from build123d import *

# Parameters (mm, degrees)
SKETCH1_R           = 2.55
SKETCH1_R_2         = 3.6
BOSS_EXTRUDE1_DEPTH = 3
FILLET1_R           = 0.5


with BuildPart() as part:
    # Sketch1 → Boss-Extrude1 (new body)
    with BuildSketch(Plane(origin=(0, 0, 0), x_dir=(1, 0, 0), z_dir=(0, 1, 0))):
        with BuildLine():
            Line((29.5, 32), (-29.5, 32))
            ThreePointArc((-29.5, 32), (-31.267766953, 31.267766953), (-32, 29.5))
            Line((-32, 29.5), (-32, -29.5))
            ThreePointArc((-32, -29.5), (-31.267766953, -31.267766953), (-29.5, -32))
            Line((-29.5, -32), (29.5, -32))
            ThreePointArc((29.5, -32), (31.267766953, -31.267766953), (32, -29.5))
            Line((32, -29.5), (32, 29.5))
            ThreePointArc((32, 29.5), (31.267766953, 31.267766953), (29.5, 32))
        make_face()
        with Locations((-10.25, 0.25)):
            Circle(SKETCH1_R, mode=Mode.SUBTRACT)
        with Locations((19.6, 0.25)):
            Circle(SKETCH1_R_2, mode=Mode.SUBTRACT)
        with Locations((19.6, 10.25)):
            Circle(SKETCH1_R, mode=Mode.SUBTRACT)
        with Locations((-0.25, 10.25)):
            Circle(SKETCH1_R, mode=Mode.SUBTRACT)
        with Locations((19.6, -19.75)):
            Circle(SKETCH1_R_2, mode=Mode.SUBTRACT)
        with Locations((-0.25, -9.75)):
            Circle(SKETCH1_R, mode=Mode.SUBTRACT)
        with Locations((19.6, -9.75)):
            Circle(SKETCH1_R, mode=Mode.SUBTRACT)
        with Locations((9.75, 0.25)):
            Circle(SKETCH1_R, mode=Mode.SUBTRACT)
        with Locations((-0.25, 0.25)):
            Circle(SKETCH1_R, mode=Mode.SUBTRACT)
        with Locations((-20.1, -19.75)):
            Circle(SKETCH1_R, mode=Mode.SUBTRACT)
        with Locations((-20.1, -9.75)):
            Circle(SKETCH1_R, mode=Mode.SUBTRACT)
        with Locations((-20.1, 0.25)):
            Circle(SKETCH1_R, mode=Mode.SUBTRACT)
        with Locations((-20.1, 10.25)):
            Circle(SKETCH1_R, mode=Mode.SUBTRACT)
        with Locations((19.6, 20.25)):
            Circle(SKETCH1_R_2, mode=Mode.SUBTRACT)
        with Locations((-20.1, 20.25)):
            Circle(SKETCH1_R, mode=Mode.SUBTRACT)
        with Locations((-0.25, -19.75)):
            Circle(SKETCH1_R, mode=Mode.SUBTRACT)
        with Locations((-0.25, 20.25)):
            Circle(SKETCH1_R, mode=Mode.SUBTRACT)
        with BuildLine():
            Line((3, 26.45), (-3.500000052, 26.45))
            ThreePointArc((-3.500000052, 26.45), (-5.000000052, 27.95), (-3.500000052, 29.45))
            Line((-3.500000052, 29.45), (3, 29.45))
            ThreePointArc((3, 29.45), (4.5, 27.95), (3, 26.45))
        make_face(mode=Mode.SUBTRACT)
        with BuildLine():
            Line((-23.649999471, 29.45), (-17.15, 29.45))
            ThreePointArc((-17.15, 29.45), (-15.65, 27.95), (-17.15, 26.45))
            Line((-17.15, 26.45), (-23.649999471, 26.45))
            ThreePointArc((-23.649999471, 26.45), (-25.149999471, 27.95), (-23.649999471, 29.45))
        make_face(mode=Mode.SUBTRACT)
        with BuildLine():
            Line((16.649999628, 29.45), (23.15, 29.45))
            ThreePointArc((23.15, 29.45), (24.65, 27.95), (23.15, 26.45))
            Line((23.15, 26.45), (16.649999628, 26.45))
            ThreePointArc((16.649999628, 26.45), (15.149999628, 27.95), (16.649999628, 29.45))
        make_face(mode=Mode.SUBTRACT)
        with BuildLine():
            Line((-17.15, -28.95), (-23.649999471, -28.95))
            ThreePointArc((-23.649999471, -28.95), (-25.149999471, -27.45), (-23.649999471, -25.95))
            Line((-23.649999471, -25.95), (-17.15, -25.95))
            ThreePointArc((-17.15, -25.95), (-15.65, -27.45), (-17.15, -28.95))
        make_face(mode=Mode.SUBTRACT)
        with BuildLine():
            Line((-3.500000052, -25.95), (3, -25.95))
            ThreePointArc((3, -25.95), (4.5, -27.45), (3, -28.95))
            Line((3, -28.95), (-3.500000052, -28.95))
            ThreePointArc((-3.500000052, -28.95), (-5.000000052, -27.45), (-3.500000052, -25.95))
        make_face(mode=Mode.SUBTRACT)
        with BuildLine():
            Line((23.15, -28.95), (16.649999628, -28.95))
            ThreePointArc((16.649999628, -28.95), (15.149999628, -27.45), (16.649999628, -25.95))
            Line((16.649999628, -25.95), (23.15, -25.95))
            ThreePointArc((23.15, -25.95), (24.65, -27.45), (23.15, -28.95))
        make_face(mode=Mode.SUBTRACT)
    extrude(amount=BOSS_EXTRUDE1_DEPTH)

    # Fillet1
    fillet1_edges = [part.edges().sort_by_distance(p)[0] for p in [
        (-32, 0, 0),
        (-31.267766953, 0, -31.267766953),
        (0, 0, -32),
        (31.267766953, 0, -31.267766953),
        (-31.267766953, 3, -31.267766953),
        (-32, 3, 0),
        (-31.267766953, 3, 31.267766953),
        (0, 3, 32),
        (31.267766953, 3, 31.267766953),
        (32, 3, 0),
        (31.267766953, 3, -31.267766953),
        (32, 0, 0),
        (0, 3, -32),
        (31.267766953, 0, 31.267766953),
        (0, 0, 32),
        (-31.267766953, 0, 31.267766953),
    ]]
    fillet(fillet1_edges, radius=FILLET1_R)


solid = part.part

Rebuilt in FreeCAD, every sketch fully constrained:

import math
import FreeCAD as App
import Part
import Sketcher
Q = App.Units.Quantity


def edges_at(feature, points):
    """Names of the edges that pass closest to the given points."""
    edges = feature.Shape.Edges
    near = lambda p: min(range(len(edges)), key=lambda i: edges[i].distToShape(Part.Vertex(*p))[0])
    return sorted({f"Edge{near(p) + 1}" for p in points})

doc = App.newDocument("Part")
body = doc.addObject("PartDesign::Body", "Body")

# Sketch on XZ plane
sketch1 = body.newObject("Sketcher::SketchObject", "Sketch")
sketch1.AttachmentSupport = (doc.getObject("XZ_Plane"), [""])
sketch1.MapMode = "FlatFace"
sketch1.addGeometry([
    Part.LineSegment(App.Vector(29.5, -32, 0), App.Vector(-29.5, -32, 0)),  # 0
    Part.ArcOfCircle(Part.Circle(App.Vector(-29.5, -29.5, 0), App.Vector(0, 0, 1), 2.5), math.radians(180), math.radians(270)),  # 1
    Part.LineSegment(App.Vector(-32, -29.5, 0), App.Vector(-32, 29.5, 0)),  # 2
    Part.ArcOfCircle(Part.Circle(App.Vector(-29.5, 29.5, 0), App.Vector(0, 0, 1), 2.5), math.radians(90), math.radians(180)),  # 3
    Part.LineSegment(App.Vector(-29.5, 32, 0), App.Vector(29.5, 32, 0)),  # 4
    Part.ArcOfCircle(Part.Circle(App.Vector(29.5, 29.5, 0), App.Vector(0, 0, 1), 2.5), math.radians(0), math.radians(90)),  # 5
    Part.LineSegment(App.Vector(32, 29.5, 0), App.Vector(32, -29.5, 0)),  # 6
    Part.ArcOfCircle(Part.Circle(App.Vector(29.5, -29.5, 0), App.Vector(0, 0, 1), 2.5), math.radians(-90), math.radians(0)),  # 7
    Part.ArcOfCircle(Part.Circle(App.Vector(-17.1, 27.4, 0), App.Vector(0, 0, 1), 1.5), math.radians(-90), math.radians(90)),  # 8
    Part.LineSegment(App.Vector(-17.1, 28.9, 0), App.Vector(-23.6, 28.9, 0)),  # 9
    Part.ArcOfCircle(Part.Circle(App.Vector(-23.6, 27.4, 0), App.Vector(0, 0, 1), 1.5), math.radians(90), math.radians(270)),  # 10
    Part.LineSegment(App.Vector(-23.6, 25.9, 0), App.Vector(-17.1, 25.9, 0)),  # 11
    Part.Circle(App.Vector(-20.1, 19.8, 0), App.Vector(0, 0, 1), 2.5),  # 12
    Part.ArcOfCircle(Part.Circle(App.Vector(-3.5, 27.4, 0), App.Vector(0, 0, 1), 1.5), math.radians(90), math.radians(270)),  # 13
    Part.LineSegment(App.Vector(-3.5, 25.9, 0), App.Vector(3, 25.9, 0)),  # 14
    Part.ArcOfCircle(Part.Circle(App.Vector(3, 27.4, 0), App.Vector(0, 0, 1), 1.5), math.radians(-90), math.radians(90)),  # 15
    Part.LineSegment(App.Vector(3, 28.9, 0), App.Vector(-3.5, 28.9, 0)),  # 16
    Part.Circle(App.Vector(-0.2, 19.8, 0), App.Vector(0, 0, 1), 2.5),  # 17
    Part.Circle(App.Vector(-20.1, 9.8, 0), App.Vector(0, 0, 1), 2.5),  # 18
    Part.Circle(App.Vector(-20.1, -0.2, 0), App.Vector(0, 0, 1), 2.5),  # 19
    Part.Circle(App.Vector(-0.2, 9.8, 0), App.Vector(0, 0, 1), 2.5),  # 20
    Part.Circle(App.Vector(-10.2, -0.2, 0), App.Vector(0, 0, 1), 2.5),  # 21
    Part.Circle(App.Vector(-0.2, -0.2, 0), App.Vector(0, 0, 1), 2.5),  # 22
    Part.ArcOfCircle(Part.Circle(App.Vector(23.1, 27.4, 0), App.Vector(0, 0, 1), 1.5), math.radians(-90), math.radians(90)),  # 23
    Part.LineSegment(App.Vector(23.1, 28.9, 0), App.Vector(16.6, 28.9, 0)),  # 24
    Part.ArcOfCircle(Part.Circle(App.Vector(16.6, 27.4, 0), App.Vector(0, 0, 1), 1.5), math.radians(90), math.radians(270)),  # 25
    Part.LineSegment(App.Vector(16.6, 25.9, 0), App.Vector(23.1, 25.9, 0)),  # 26
    Part.Circle(App.Vector(19.6, 19.8, 0), App.Vector(0, 0, 1), 3.6),  # 27
    Part.Circle(App.Vector(9.8, -0.2, 0), App.Vector(0, 0, 1), 2.5),  # 28
    Part.Circle(App.Vector(19.6, 9.8, 0), App.Vector(0, 0, 1), 2.5),  # 29
    Part.Circle(App.Vector(19.6, -0.2, 0), App.Vector(0, 0, 1), 3.6),  # 30
    Part.Circle(App.Vector(-20.1, -10.2, 0), App.Vector(0, 0, 1), 2.5),  # 31
    Part.Circle(App.Vector(-0.2, -10.2, 0), App.Vector(0, 0, 1), 2.5),  # 32
    Part.Circle(App.Vector(-20.1, -20.2, 0), App.Vector(0, 0, 1), 2.5),  # 33
    Part.ArcOfCircle(Part.Circle(App.Vector(-23.6, -27.9, 0), App.Vector(0, 0, 1), 1.5), math.radians(90), math.radians(270)),  # 34
    Part.LineSegment(App.Vector(-23.6, -29.4, 0), App.Vector(-17.1, -29.4, 0)),  # 35
    Part.ArcOfCircle(Part.Circle(App.Vector(-17.1, -27.9, 0), App.Vector(0, 0, 1), 1.5), math.radians(-90), math.radians(90)),  # 36
    Part.LineSegment(App.Vector(-17.1, -26.4, 0), App.Vector(-23.6, -26.4, 0)),  # 37
    Part.Circle(App.Vector(-0.2, -20.2, 0), App.Vector(0, 0, 1), 2.5),  # 38
    Part.ArcOfCircle(Part.Circle(App.Vector(3, -27.9, 0), App.Vector(0, 0, 1), 1.5), math.radians(-90), math.radians(90)),  # 39
    Part.LineSegment(App.Vector(3, -26.4, 0), App.Vector(-3.5, -26.4, 0)),  # 40
    Part.ArcOfCircle(Part.Circle(App.Vector(-3.5, -27.9, 0), App.Vector(0, 0, 1), 1.5), math.radians(90), math.radians(270)),  # 41
    Part.LineSegment(App.Vector(-3.5, -29.4, 0), App.Vector(3, -29.4, 0)),  # 42
    Part.Circle(App.Vector(19.6, -10.2, 0), App.Vector(0, 0, 1), 2.5),  # 43
    Part.Circle(App.Vector(19.6, -20.2, 0), App.Vector(0, 0, 1), 3.6),  # 44
    Part.ArcOfCircle(Part.Circle(App.Vector(16.6, -27.9, 0), App.Vector(0, 0, 1), 1.5), math.radians(90), math.radians(270)),  # 45
    Part.LineSegment(App.Vector(16.6, -29.4, 0), App.Vector(23.1, -29.4, 0)),  # 46
    Part.ArcOfCircle(Part.Circle(App.Vector(23.1, -27.9, 0), App.Vector(0, 0, 1), 1.5), math.radians(-90), math.radians(90)),  # 47
    Part.LineSegment(App.Vector(23.1, -26.4, 0), App.Vector(16.6, -26.4, 0)),  # 48
], False)
sketch1.addConstraint([
    Sketcher.Constraint("Tangent", 0, 2, 1, 2),
    Sketcher.Constraint("Tangent", 1, 1, 2, 1),
    Sketcher.Constraint("Tangent", 2, 2, 3, 2),
    Sketcher.Constraint("Tangent", 3, 1, 4, 1),
    Sketcher.Constraint("Tangent", 4, 2, 5, 2),
    Sketcher.Constraint("Tangent", 5, 1, 6, 1),
    Sketcher.Constraint("Tangent", 6, 2, 7, 2),
    Sketcher.Constraint("Tangent", 7, 1, 0, 1),
    Sketcher.Constraint("Tangent", 8, 2, 9, 1),
    Sketcher.Constraint("Tangent", 9, 2, 10, 1),
    Sketcher.Constraint("Tangent", 10, 2, 11, 1),
    Sketcher.Constraint("Tangent", 11, 2, 8, 1),
    Sketcher.Constraint("Tangent", 13, 2, 14, 1),
    Sketcher.Constraint("Tangent", 14, 2, 15, 1),
    Sketcher.Constraint("Tangent", 15, 2, 16, 1),
    Sketcher.Constraint("Tangent", 16, 2, 13, 1),
    Sketcher.Constraint("Tangent", 23, 2, 24, 1),
    Sketcher.Constraint("Tangent", 24, 2, 25, 1),
    Sketcher.Constraint("Tangent", 25, 2, 26, 1),
    Sketcher.Constraint("Tangent", 26, 2, 23, 1),
    Sketcher.Constraint("Tangent", 34, 2, 35, 1),
    Sketcher.Constraint("Tangent", 35, 2, 36, 1),
    Sketcher.Constraint("Tangent", 36, 2, 37, 1),
    Sketcher.Constraint("Tangent", 37, 2, 34, 1),
    Sketcher.Constraint("Tangent", 39, 2, 40, 1),
    Sketcher.Constraint("Tangent", 40, 2, 41, 1),
    Sketcher.Constraint("Tangent", 41, 2, 42, 1),
    Sketcher.Constraint("Tangent", 42, 2, 39, 1),
    Sketcher.Constraint("Tangent", 45, 2, 46, 1),
    Sketcher.Constraint("Tangent", 46, 2, 47, 1),
    Sketcher.Constraint("Tangent", 47, 2, 48, 1),
    Sketcher.Constraint("Tangent", 48, 2, 45, 1),
    Sketcher.Constraint("Horizontal", 0),
    Sketcher.Constraint("Vertical", 2),
    Sketcher.Constraint("Horizontal", 4),
    Sketcher.Constraint("Vertical", 6),
    Sketcher.Constraint("Horizontal", 9),
    Sketcher.Constraint("Horizontal", 11),
    Sketcher.Constraint("Horizontal", 14),
    Sketcher.Constraint("Horizontal", 16),
    Sketcher.Constraint("Horizontal", 24),
    Sketcher.Constraint("Horizontal", 26),
    Sketcher.Constraint("Horizontal", 35),
    Sketcher.Constraint("Horizontal", 37),
    Sketcher.Constraint("Horizontal", 40),
    Sketcher.Constraint("Horizontal", 42),
    Sketcher.Constraint("Horizontal", 46),
    Sketcher.Constraint("Horizontal", 48),
    Sketcher.Constraint("Equal", 1, 3),
    Sketcher.Constraint("Equal", 3, 5),
    Sketcher.Constraint("Equal", 5, 7),
    Sketcher.Constraint("Equal", 10, 13),
    Sketcher.Constraint("Equal", 12, 17),
    Sketcher.Constraint("Equal", 17, 18),
    Sketcher.Constraint("Equal", 18, 19),
    Sketcher.Constraint("Equal", 19, 20),
    Sketcher.Constraint("Equal", 20, 21),
    Sketcher.Constraint("Equal", 21, 22),
    Sketcher.Constraint("Equal", 15, 23),
    Sketcher.Constraint("Equal", 22, 28),
    Sketcher.Constraint("Equal", 28, 29),
    Sketcher.Constraint("Equal", 27, 30),
    Sketcher.Constraint("Equal", 29, 31),
    Sketcher.Constraint("Equal", 31, 32),
    Sketcher.Constraint("Equal", 32, 33),
    Sketcher.Constraint("Equal", 25, 34),
    Sketcher.Constraint("Equal", 33, 38),
    Sketcher.Constraint("Equal", 36, 39),
    Sketcher.Constraint("Equal", 38, 43),
    Sketcher.Constraint("Equal", 30, 44),
    Sketcher.Constraint("Equal", 41, 45),
    Sketcher.Constraint("Symmetric", 1, 3, 5, 3, -1, 1),
    Sketcher.Constraint("Horizontal", 10, 3, 13, 3),
    Sketcher.Constraint("Horizontal", 12, 3, 17, 3),
    Sketcher.Constraint("Horizontal", 18, 3, 20, 3),
    Sketcher.Constraint("Horizontal", 19, 3, 21, 3),
    Sketcher.Constraint("Horizontal", 21, 3, 22, 3),
    Sketcher.Constraint("Horizontal", 15, 3, 23, 3),
    Sketcher.Constraint("Horizontal", 17, 3, 27, 3),
    Sketcher.Constraint("Horizontal", 22, 3, 28, 3),
    Sketcher.Constraint("Horizontal", 20, 3, 29, 3),
    Sketcher.Constraint("Horizontal", 28, 3, 30, 3),
    Sketcher.Constraint("Horizontal", 31, 3, 32, 3),
    Sketcher.Constraint("Horizontal", 33, 3, 38, 3),
    Sketcher.Constraint("Horizontal", 36, 3, 39, 3),
    Sketcher.Constraint("Horizontal", 32, 3, 43, 3),
    Sketcher.Constraint("Horizontal", 38, 3, 44, 3),
    Sketcher.Constraint("Horizontal", 41, 3, 45, 3),
    Sketcher.Constraint("Vertical", 12, 3, 18, 3),
    Sketcher.Constraint("Vertical", 18, 3, 19, 3),
    Sketcher.Constraint("Vertical", 17, 3, 20, 3),
    Sketcher.Constraint("Vertical", 20, 3, 22, 3),
    Sketcher.Constraint("Vertical", 27, 3, 29, 3),
    Sketcher.Constraint("Vertical", 29, 3, 30, 3),
    Sketcher.Constraint("Vertical", 19, 3, 31, 3),
    Sketcher.Constraint("Vertical", 22, 3, 32, 3),
    Sketcher.Constraint("Vertical", 31, 3, 33, 3),
    Sketcher.Constraint("Vertical", 10, 3, 34, 3),
    Sketcher.Constraint("Vertical", 8, 3, 36, 3),
    Sketcher.Constraint("Vertical", 32, 3, 38, 3),
    Sketcher.Constraint("Vertical", 15, 3, 39, 3),
    Sketcher.Constraint("Vertical", 13, 3, 41, 3),
    Sketcher.Constraint("Vertical", 30, 3, 43, 3),
    Sketcher.Constraint("Vertical", 43, 3, 44, 3),
    Sketcher.Constraint("Vertical", 25, 3, 45, 3),
    Sketcher.Constraint("Vertical", 23, 3, 47, 3),
    Sketcher.Constraint("Equal", 11, 14),
    Sketcher.Constraint("Equal", 16, 24),
    Sketcher.Constraint("Equal", 4, 2),
    Sketcher.Constraint("Diameter", 12, Q("5.1 mm")),
    Sketcher.Constraint("Diameter", 27, Q("7.2 mm")),
    Sketcher.Constraint("Radius", 1, Q("2.5 mm")),
    Sketcher.Constraint("Radius", 8, Q("1.5 mm")),
    Sketcher.Constraint("DistanceX", 0, 2, 0, 1, Q("59 mm")),
    Sketcher.Constraint("DistanceX", 9, 2, 9, 1, Q("6.499999 mm")),
    Sketcher.Constraint("DistanceX", -1, 1, 15, 3, Q("3 mm")),
    Sketcher.Constraint("DistanceX", 12, 3, -1, 1, Q("20.1 mm")),
    Sketcher.Constraint("DistanceX", -1, 1, 27, 3, Q("19.6 mm")),
    Sketcher.Constraint("DistanceX", 8, 3, -1, 1, Q("17.15 mm")),
    Sketcher.Constraint("DistanceY", -1, 1, 8, 3, Q("27.45 mm")),
    Sketcher.Constraint("DistanceY", -1, 1, 12, 3, Q("19.75 mm")),
    Sketcher.Constraint("DistanceX", 17, 3, -1, 1, Q("0.25 mm")),
    Sketcher.Constraint("DistanceY", -1, 1, 18, 3, Q("9.75 mm")),
    Sketcher.Constraint("DistanceY", 19, 3, -1, 1, Q("0.25 mm")),
    Sketcher.Constraint("DistanceX", 21, 3, -1, 1, Q("10.25 mm")),
    Sketcher.Constraint("DistanceX", -1, 1, 23, 3, Q("23.15 mm")),
    Sketcher.Constraint("DistanceX", -1, 1, 28, 3, Q("9.75 mm")),
    Sketcher.Constraint("DistanceY", 31, 3, -1, 1, Q("10.25 mm")),
    Sketcher.Constraint("DistanceY", 33, 3, -1, 1, Q("20.25 mm")),
    Sketcher.Constraint("DistanceY", 34, 3, -1, 1, Q("27.95 mm")),
])
pad1 = body.newObject("PartDesign::Pad", "Pad")
pad1.Profile = sketch1
pad1.Length = 3
pad1.Reversed = True
doc.recompute()

fillet = body.newObject("PartDesign::Fillet", "Fillet")
fillet.Base = (pad1, edges_at(pad1, [
    (-32, 0, 0),
    (-31.268, 0, -31.268),
    (0, 0, -32),
    (31.268, 0, -31.268),
    (-31.268, 3, -31.268),
    (-32, 3, 0),
    (-31.268, 3, 31.268),
    (0, 3, 32),
    (31.268, 3, 31.268),
    (32, 3, 0),
    (31.268, 3, -31.268),
    (32, 0, 0),
    (0, 3, -32),
    (31.268, 0, 31.268),
    (0, 0, 32),
    (-31.268, 0, 31.268),
]))
fillet.Radius = 0.5

doc.recompute()
